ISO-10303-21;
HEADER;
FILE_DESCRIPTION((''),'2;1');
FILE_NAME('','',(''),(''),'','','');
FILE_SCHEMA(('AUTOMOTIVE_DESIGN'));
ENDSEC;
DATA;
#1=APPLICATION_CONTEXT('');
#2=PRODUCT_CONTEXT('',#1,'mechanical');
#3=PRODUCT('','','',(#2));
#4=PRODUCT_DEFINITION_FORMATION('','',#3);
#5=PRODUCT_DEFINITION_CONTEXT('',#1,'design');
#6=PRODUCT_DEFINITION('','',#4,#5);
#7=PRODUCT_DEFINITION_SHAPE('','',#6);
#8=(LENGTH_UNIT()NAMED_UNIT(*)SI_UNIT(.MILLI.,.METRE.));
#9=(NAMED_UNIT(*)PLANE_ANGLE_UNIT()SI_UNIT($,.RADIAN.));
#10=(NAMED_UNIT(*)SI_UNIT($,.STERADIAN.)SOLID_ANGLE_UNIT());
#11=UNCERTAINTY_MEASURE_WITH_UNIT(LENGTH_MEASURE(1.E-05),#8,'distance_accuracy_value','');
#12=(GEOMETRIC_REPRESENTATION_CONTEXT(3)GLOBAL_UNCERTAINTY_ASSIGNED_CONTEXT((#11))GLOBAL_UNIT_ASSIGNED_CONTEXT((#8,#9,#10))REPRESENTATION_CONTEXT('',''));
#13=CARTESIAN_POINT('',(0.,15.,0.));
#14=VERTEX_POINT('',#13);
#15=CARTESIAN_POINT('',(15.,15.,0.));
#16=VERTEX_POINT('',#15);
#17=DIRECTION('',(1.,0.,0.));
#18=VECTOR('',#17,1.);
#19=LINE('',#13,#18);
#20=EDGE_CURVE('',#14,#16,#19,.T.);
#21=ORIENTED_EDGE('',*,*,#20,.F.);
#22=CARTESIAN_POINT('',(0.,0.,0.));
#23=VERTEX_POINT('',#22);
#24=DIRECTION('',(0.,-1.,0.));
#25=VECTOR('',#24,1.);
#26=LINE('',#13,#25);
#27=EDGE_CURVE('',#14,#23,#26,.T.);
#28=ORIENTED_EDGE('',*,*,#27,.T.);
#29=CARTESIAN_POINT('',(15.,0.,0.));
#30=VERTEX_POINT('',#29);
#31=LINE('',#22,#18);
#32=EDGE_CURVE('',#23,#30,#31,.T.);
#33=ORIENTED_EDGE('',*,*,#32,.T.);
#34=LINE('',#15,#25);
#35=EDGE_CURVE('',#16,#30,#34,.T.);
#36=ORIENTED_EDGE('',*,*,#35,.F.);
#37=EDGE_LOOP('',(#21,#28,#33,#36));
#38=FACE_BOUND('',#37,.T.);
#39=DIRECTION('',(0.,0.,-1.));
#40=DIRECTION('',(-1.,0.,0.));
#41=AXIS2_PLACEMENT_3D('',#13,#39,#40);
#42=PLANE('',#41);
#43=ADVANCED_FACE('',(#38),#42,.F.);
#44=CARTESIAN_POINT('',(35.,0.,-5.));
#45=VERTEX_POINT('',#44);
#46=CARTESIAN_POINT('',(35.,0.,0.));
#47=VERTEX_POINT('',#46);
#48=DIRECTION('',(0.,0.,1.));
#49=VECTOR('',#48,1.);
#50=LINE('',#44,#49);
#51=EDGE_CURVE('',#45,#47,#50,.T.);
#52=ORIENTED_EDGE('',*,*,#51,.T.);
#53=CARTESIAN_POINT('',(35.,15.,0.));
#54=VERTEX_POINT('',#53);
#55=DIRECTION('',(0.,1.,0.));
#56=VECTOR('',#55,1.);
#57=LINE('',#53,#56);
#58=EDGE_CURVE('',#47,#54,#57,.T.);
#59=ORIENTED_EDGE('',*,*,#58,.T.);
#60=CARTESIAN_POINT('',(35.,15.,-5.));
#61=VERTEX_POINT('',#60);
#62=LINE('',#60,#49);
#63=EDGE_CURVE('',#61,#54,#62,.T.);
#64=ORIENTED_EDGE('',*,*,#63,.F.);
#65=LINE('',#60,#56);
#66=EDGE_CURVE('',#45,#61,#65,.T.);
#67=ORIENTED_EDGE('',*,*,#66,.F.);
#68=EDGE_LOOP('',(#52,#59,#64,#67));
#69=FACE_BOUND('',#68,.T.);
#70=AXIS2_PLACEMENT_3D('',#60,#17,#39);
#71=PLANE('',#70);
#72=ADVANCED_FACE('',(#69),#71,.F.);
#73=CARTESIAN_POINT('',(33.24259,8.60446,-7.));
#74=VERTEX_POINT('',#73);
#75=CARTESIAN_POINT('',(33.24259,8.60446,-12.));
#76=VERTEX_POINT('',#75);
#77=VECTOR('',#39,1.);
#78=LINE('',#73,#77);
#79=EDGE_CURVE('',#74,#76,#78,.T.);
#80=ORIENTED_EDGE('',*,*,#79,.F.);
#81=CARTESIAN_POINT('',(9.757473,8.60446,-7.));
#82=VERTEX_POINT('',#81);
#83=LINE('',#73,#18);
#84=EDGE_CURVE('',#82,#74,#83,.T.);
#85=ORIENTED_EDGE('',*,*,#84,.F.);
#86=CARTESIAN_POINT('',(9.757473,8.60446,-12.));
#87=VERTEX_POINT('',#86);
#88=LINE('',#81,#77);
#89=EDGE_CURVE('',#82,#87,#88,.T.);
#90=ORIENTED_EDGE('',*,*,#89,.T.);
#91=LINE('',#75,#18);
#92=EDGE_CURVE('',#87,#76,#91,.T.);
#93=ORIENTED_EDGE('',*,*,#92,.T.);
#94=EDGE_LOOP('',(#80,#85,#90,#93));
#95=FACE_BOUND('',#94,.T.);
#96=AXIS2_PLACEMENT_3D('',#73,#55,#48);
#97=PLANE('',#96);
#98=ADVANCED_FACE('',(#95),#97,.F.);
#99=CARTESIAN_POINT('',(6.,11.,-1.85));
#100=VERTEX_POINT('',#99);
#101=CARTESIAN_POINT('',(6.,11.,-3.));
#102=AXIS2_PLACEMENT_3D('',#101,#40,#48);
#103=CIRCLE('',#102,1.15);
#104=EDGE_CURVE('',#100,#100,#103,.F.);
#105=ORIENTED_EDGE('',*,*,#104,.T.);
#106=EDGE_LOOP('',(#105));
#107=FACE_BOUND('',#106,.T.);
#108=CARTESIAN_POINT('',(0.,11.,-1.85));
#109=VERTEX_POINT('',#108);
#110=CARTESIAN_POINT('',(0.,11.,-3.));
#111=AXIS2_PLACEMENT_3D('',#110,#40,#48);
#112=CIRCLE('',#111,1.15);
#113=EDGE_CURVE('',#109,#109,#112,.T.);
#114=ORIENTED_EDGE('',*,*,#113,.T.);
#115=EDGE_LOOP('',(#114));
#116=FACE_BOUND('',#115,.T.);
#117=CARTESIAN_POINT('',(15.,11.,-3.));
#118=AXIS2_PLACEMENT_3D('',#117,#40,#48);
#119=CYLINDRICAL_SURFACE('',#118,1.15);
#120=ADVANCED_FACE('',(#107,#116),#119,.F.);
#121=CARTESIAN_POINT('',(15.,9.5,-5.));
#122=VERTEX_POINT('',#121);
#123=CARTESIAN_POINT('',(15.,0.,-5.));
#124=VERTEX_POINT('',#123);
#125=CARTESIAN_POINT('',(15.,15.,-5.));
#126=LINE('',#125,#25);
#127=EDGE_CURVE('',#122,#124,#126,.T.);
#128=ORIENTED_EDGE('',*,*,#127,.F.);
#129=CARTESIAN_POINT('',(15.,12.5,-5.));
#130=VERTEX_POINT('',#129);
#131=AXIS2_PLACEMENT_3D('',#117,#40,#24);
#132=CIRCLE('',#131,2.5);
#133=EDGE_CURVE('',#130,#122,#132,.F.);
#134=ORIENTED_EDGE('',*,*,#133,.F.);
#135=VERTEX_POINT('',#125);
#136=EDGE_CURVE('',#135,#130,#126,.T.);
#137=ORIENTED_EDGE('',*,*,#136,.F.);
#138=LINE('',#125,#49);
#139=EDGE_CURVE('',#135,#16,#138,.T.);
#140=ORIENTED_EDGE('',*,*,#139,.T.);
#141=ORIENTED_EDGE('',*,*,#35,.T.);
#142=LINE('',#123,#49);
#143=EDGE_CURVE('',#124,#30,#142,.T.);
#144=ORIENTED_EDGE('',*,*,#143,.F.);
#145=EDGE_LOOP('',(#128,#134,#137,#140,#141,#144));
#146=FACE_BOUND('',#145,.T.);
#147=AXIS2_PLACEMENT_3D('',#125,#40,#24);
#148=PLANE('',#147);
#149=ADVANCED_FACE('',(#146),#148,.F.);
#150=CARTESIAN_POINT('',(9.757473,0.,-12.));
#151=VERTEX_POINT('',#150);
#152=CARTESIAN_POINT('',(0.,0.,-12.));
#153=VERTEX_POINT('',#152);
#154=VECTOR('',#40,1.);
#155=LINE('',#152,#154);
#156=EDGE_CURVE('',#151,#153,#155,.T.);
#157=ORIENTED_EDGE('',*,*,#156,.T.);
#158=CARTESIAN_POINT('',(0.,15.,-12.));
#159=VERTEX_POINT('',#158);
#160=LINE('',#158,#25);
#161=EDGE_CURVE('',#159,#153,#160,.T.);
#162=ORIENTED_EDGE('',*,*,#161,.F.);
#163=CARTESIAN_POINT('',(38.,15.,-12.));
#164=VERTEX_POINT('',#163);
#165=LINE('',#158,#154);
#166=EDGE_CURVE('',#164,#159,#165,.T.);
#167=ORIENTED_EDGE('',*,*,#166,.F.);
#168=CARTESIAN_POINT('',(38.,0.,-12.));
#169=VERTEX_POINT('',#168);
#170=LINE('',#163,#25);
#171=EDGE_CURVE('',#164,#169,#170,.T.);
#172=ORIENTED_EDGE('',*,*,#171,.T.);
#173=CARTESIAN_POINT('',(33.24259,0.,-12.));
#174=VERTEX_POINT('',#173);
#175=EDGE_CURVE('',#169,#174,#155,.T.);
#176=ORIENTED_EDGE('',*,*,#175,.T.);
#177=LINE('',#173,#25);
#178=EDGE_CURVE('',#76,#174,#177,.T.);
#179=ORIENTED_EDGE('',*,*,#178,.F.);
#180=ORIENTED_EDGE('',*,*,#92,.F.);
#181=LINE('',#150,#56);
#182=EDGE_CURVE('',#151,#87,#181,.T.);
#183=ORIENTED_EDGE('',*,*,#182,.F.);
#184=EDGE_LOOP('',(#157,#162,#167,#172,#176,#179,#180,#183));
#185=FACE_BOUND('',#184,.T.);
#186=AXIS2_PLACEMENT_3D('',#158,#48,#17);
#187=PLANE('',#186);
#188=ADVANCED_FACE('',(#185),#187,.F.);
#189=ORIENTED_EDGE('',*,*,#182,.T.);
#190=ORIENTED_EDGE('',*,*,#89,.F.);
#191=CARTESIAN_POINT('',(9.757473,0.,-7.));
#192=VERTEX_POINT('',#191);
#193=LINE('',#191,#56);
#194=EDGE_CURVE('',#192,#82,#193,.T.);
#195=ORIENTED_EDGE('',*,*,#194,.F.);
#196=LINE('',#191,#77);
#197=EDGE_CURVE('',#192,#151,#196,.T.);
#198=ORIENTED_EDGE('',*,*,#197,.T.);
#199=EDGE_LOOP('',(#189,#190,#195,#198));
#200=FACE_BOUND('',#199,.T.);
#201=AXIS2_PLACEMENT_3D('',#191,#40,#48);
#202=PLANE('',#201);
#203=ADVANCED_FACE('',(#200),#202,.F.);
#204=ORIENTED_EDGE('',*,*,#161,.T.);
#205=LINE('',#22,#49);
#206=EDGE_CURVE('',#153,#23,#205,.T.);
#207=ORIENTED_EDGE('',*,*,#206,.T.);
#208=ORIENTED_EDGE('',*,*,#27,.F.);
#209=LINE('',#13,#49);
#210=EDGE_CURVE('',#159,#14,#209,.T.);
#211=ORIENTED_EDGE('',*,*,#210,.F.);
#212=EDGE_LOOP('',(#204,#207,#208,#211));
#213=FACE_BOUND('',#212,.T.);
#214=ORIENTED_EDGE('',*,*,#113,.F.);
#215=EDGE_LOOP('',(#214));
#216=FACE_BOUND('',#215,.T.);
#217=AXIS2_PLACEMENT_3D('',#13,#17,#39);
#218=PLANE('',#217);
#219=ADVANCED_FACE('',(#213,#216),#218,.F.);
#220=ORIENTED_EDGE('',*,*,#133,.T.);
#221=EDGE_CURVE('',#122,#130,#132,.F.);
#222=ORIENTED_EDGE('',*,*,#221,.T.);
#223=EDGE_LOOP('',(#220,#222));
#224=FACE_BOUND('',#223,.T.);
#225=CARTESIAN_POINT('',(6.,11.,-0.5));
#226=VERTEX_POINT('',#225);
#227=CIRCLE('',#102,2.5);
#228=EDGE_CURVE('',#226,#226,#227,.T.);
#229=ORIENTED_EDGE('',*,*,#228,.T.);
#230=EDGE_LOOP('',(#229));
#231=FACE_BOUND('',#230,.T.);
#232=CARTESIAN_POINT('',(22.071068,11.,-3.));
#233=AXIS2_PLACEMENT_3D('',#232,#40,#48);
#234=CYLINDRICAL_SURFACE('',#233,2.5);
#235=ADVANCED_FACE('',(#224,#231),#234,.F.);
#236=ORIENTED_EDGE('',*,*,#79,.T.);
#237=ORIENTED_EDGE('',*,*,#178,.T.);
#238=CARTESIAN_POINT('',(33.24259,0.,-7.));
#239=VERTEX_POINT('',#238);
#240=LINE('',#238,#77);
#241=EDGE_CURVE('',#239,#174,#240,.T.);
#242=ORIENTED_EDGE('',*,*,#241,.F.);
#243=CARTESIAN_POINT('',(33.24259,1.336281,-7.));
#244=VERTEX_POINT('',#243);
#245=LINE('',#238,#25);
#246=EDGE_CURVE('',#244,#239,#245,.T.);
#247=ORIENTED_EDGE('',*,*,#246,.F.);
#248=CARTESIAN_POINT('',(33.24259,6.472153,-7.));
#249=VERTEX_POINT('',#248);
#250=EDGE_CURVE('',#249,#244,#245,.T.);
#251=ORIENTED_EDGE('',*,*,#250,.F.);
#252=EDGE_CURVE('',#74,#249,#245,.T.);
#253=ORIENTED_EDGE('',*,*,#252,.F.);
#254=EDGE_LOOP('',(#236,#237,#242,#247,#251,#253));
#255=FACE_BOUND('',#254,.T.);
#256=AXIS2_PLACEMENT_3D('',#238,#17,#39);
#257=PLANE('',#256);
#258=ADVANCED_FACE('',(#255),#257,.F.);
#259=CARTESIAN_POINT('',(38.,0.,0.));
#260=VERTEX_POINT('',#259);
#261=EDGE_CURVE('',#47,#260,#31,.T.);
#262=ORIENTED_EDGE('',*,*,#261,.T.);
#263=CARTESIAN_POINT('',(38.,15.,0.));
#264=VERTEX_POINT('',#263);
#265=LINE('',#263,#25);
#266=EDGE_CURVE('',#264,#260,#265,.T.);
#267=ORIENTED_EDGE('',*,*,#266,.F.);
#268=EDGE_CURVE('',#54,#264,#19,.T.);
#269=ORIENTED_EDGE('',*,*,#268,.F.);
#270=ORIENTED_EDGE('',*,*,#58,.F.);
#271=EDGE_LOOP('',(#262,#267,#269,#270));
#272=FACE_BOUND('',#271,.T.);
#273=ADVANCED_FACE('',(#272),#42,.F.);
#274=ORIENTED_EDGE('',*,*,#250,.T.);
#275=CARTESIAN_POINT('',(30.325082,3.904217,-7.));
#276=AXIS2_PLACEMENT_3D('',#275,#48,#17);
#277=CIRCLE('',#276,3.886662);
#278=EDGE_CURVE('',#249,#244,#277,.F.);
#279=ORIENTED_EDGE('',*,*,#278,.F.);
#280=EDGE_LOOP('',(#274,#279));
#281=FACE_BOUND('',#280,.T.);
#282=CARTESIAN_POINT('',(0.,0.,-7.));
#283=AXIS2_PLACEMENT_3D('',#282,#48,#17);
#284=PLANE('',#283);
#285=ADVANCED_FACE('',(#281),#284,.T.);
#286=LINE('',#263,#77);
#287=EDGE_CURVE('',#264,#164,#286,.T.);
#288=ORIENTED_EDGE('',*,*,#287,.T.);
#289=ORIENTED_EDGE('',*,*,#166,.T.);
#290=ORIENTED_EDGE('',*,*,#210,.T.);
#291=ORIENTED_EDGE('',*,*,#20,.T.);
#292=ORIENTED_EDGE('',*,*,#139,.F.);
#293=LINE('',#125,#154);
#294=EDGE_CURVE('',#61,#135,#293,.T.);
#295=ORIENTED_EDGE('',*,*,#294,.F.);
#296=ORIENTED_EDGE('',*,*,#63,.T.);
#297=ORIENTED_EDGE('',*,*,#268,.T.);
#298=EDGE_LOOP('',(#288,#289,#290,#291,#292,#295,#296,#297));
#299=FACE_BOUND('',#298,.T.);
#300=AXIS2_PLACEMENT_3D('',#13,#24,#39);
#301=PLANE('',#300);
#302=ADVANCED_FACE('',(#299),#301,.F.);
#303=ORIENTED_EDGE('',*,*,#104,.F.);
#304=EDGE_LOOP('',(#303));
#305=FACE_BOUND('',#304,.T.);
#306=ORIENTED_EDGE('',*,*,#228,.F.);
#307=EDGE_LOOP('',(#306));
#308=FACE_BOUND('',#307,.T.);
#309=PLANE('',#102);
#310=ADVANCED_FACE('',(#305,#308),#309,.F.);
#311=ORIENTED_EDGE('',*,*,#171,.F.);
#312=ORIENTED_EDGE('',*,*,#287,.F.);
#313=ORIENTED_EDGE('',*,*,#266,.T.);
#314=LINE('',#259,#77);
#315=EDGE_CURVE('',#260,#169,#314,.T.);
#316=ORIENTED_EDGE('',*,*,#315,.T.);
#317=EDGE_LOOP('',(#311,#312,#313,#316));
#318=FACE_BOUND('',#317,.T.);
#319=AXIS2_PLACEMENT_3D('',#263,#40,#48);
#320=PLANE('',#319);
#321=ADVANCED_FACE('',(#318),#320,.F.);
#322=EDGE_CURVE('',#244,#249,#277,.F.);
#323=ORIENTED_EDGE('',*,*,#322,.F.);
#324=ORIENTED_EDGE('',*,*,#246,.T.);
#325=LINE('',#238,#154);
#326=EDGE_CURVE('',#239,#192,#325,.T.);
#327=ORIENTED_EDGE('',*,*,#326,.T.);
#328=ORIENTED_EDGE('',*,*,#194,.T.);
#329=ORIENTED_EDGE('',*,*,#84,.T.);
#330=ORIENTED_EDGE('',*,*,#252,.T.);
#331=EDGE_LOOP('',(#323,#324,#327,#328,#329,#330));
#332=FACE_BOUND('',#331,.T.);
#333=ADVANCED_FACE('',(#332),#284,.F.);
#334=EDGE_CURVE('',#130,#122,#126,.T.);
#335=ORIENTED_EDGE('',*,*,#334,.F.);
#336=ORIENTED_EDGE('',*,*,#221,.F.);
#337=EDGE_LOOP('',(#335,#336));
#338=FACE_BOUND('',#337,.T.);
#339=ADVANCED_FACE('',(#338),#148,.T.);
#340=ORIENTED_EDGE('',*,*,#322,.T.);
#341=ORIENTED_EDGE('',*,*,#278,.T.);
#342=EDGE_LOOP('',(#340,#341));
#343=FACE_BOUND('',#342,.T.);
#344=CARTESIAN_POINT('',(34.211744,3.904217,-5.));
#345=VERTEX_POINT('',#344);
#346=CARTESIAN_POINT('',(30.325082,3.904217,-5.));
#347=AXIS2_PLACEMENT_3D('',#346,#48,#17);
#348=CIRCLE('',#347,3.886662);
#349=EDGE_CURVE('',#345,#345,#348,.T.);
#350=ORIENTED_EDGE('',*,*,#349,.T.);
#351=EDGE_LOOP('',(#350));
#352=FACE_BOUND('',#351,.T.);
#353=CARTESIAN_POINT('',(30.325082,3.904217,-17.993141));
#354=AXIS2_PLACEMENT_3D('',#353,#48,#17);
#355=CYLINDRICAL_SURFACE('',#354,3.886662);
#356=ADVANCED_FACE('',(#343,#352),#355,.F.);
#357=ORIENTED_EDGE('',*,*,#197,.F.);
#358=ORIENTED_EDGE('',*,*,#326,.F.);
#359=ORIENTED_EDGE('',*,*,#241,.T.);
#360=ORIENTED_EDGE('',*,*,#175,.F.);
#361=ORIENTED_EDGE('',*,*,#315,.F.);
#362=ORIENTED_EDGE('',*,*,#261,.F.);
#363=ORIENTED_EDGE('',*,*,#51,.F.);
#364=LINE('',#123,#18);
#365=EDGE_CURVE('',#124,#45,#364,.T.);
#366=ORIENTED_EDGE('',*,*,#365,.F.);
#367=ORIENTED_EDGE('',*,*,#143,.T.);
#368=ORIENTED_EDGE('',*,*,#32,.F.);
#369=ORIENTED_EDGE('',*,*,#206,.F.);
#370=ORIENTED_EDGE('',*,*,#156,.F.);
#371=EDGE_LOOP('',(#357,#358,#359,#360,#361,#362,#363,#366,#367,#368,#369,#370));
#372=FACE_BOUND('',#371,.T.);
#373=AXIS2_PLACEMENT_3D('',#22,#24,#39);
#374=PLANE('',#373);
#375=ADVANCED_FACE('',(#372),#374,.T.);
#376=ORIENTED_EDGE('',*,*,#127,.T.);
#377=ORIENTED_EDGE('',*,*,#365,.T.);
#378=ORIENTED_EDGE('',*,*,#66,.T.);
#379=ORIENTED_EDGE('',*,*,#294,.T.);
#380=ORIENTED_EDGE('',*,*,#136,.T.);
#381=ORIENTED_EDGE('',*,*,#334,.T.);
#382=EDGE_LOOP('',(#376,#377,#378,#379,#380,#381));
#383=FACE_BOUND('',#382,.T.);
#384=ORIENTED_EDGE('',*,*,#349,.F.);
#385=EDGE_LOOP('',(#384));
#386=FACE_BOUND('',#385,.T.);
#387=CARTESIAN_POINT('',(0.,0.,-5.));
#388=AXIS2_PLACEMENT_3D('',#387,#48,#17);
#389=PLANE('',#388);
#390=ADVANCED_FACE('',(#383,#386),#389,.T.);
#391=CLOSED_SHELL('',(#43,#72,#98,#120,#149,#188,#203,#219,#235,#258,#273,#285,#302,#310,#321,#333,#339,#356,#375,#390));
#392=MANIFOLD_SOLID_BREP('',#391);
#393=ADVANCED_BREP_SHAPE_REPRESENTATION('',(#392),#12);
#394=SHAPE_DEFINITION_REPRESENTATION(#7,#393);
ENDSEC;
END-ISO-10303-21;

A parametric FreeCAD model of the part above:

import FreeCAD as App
import Part
import Sketcher

V = App.Vector

doc = App.newDocument("Part")
body = doc.addObject("PartDesign::Body", "Body")

# Sketch on XZ plane
sketch1 = doc.addObject("Sketcher::SketchObject", "Sketch")
body.addObject(sketch1)
sketch1.AttachmentSupport = (doc.XZ_Plane, [""])
sketch1.MapMode = "FlatFace"
sketch1.addGeometry([
    Part.LineSegment(V(0, -12, 0), V(0, 0, 0)),
    Part.LineSegment(V(0, 0, 0), V(38, 0, 0)),
    Part.LineSegment(V(38, 0, 0), V(38, -12, 0)),
    Part.LineSegment(V(38, -12, 0), V(0, -12, 0)),
], False)
sketch1.addConstraint([
    Sketcher.Constraint("Coincident", 0, 2, 1, 1),
    Sketcher.Constraint("Coincident", 1, 2, 2, 1),
    Sketcher.Constraint("Coincident", 2, 2, 3, 1),
    Sketcher.Constraint("Coincident", 3, 2, 0, 1),
    Sketcher.Constraint("Vertical", 0),
    Sketcher.Constraint("Horizontal", 1),
    Sketcher.Constraint("Vertical", 2),
    Sketcher.Constraint("Horizontal", 3),
    Sketcher.Constraint("Coincident", 0, 2, -1, 1),
    Sketcher.Constraint("DistanceX", 1, 1, 1, 2, 38.0),
    Sketcher.Constraint("DistanceY", 0, 1, 0, 2, 12.0),
])
pad1 = doc.addObject("PartDesign::Pad", "Pad")
body.addObject(pad1)
pad1.Profile = sketch1
pad1.Length = 15
pad1.Reversed = True

# Sketch on YZ plane
sketch2 = doc.addObject("Sketcher::SketchObject", "Sketch001")
body.addObject(sketch2)
sketch2.AttachmentSupport = (doc.YZ_Plane, [""])
sketch2.MapMode = "FlatFace"
sketch2.addGeometry(Part.Circle(V(11, -3, 0), V(0, 0, 1), 1.1), False)
sketch2.addConstraint([
    Sketcher.Constraint("Diameter", 0, 2.3),
    Sketcher.Constraint("DistanceX", -1, 1, 0, 3, 11.0),
    Sketcher.Constraint("DistanceY", 0, 3, -1, 1, 3.0),
])
pocket1 = doc.addObject("PartDesign::Pocket", "Pocket")
body.addObject(pocket1)
pocket1.Profile = sketch2
pocket1.Length = 15
pocket1.Reversed = True

# Sketch on XY plane
sketch3 = doc.addObject("Sketcher::SketchObject", "Sketch002")
body.addObject(sketch3)
sketch3.AttachmentSupport = (doc.XY_Plane, [""])
sketch3.MapMode = "FlatFace"
sketch3.addGeometry([
    Part.LineSegment(V(15, 15, 0), V(15, 0, 0)),
    Part.LineSegment(V(15, 0, 0), V(35, 0, 0)),
    Part.LineSegment(V(35, 0, 0), V(35, 15, 0)),
    Part.LineSegment(V(35, 15, 0), V(15, 15, 0)),
], False)
sketch3.addConstraint([
    Sketcher.Constraint("Coincident", 0, 2, 1, 1),
    Sketcher.Constraint("Coincident", 1, 2, 2, 1),
    Sketcher.Constraint("Coincident", 2, 2, 3, 1),
    Sketcher.Constraint("Coincident", 3, 2, 0, 1),
    Sketcher.Constraint("Vertical", 0),
    Sketcher.Constraint("Horizontal", 1),
    Sketcher.Constraint("Vertical", 2),
    Sketcher.Constraint("Horizontal", 3),
    Sketcher.Constraint("PointOnObject", 0, 2, -1),
    Sketcher.Constraint("DistanceX", 1, 1, 1, 2, 20.0),
    Sketcher.Constraint("DistanceY", 0, 2, 0, 1, 15.0),
    Sketcher.Constraint("DistanceX", -1, 1, 0, 2, 15.0),
])
pocket2 = doc.addObject("PartDesign::Pocket", "Pocket001")
body.addObject(pocket2)
pocket2.Profile = sketch3
pocket2.Length = 5

# Sketch on YZ plane
sketch4 = doc.addObject("Sketcher::SketchObject", "Sketch003")
body.addObject(sketch4)
sketch4.AttachmentSupport = (doc.YZ_Plane, [""])
sketch4.MapMode = "FlatFace"
sketch4.AttachmentOffset = App.Placement(V(0, 0, 6), App.Rotation())
sketch4.addGeometry(Part.Circle(V(11, -3, 0), V(0, 0, 1), 2.5), False)
sketch4.addConstraint([
    Sketcher.Constraint("Diameter", 0, 5.0),
    Sketcher.Constraint("DistanceX", -1, 1, 0, 3, 11.0),
    Sketcher.Constraint("DistanceY", 0, 3, -1, 1, 3.0),
])
pocket3 = doc.addObject("PartDesign::Pocket", "Pocket002")
body.addObject(pocket3)
pocket3.Profile = sketch4
pocket3.Length = 9
pocket3.Reversed = True

# Sketch on XY plane
sketch5 = doc.addObject("Sketcher::SketchObject", "Sketch004")
body.addObject(sketch5)
sketch5.AttachmentSupport = (doc.XY_Plane, [""])
sketch5.MapMode = "FlatFace"
sketch5.AttachmentOffset = App.Placement(V(0, 0, -12), App.Rotation())
sketch5.addGeometry([
    Part.LineSegment(V(33, 9, 0), V(33, 0, 0)),
    Part.LineSegment(V(33, 0, 0), V(10, 0, 0)),
    Part.LineSegment(V(10, 0, 0), V(10, 9, 0)),
    Part.LineSegment(V(10, 9, 0), V(33, 9, 0)),
], False)
sketch5.addConstraint([
    Sketcher.Constraint("Coincident", 0, 2, 1, 1),
    Sketcher.Constraint("Coincident", 1, 2, 2, 1),
    Sketcher.Constraint("Coincident", 2, 2, 3, 1),
    Sketcher.Constraint("Coincident", 3, 2, 0, 1),
    Sketcher.Constraint("Vertical", 0),
    Sketcher.Constraint("Horizontal", 1),
    Sketcher.Constraint("Vertical", 2),
    Sketcher.Constraint("Horizontal", 3),
    Sketcher.Constraint("PointOnObject", 0, 2, -1),
    Sketcher.Constraint("DistanceY", 0, 2, 0, 1, 8.60446),
    Sketcher.Constraint("DistanceX", 1, 2, 1, 1, 23.485117),
    Sketcher.Constraint("DistanceX", -1, 1, 0, 2, 33.24259),
])
pocket4 = doc.addObject("PartDesign::Pocket", "Pocket003")
body.addObject(pocket4)
pocket4.Profile = sketch5
pocket4.Length = 5
pocket4.Reversed = True

# Sketch on XY plane
sketch6 = doc.addObject("Sketcher::SketchObject", "Sketch005")
body.addObject(sketch6)
sketch6.AttachmentSupport = (doc.XY_Plane, [""])
sketch6.MapMode = "FlatFace"
sketch6.AttachmentOffset = App.Placement(V(0, 0, -5), App.Rotation())
sketch6.addGeometry(Part.Circle(V(30.3, 3.9, 0), V(0, 0, 1), 3.9), False)
sketch6.addConstraint([
    Sketcher.Constraint("Diameter", 0, 7.773325),
    Sketcher.Constraint("DistanceX", -1, 1, 0, 3, 30.325082),
    Sketcher.Constraint("DistanceY", -1, 1, 0, 3, 3.904217),
])
pocket5 = doc.addObject("PartDesign::Pocket", "Pocket004")
body.addObject(pocket5)
pocket5.Profile = sketch6
pocket5.Length = 2

doc.recompute()
